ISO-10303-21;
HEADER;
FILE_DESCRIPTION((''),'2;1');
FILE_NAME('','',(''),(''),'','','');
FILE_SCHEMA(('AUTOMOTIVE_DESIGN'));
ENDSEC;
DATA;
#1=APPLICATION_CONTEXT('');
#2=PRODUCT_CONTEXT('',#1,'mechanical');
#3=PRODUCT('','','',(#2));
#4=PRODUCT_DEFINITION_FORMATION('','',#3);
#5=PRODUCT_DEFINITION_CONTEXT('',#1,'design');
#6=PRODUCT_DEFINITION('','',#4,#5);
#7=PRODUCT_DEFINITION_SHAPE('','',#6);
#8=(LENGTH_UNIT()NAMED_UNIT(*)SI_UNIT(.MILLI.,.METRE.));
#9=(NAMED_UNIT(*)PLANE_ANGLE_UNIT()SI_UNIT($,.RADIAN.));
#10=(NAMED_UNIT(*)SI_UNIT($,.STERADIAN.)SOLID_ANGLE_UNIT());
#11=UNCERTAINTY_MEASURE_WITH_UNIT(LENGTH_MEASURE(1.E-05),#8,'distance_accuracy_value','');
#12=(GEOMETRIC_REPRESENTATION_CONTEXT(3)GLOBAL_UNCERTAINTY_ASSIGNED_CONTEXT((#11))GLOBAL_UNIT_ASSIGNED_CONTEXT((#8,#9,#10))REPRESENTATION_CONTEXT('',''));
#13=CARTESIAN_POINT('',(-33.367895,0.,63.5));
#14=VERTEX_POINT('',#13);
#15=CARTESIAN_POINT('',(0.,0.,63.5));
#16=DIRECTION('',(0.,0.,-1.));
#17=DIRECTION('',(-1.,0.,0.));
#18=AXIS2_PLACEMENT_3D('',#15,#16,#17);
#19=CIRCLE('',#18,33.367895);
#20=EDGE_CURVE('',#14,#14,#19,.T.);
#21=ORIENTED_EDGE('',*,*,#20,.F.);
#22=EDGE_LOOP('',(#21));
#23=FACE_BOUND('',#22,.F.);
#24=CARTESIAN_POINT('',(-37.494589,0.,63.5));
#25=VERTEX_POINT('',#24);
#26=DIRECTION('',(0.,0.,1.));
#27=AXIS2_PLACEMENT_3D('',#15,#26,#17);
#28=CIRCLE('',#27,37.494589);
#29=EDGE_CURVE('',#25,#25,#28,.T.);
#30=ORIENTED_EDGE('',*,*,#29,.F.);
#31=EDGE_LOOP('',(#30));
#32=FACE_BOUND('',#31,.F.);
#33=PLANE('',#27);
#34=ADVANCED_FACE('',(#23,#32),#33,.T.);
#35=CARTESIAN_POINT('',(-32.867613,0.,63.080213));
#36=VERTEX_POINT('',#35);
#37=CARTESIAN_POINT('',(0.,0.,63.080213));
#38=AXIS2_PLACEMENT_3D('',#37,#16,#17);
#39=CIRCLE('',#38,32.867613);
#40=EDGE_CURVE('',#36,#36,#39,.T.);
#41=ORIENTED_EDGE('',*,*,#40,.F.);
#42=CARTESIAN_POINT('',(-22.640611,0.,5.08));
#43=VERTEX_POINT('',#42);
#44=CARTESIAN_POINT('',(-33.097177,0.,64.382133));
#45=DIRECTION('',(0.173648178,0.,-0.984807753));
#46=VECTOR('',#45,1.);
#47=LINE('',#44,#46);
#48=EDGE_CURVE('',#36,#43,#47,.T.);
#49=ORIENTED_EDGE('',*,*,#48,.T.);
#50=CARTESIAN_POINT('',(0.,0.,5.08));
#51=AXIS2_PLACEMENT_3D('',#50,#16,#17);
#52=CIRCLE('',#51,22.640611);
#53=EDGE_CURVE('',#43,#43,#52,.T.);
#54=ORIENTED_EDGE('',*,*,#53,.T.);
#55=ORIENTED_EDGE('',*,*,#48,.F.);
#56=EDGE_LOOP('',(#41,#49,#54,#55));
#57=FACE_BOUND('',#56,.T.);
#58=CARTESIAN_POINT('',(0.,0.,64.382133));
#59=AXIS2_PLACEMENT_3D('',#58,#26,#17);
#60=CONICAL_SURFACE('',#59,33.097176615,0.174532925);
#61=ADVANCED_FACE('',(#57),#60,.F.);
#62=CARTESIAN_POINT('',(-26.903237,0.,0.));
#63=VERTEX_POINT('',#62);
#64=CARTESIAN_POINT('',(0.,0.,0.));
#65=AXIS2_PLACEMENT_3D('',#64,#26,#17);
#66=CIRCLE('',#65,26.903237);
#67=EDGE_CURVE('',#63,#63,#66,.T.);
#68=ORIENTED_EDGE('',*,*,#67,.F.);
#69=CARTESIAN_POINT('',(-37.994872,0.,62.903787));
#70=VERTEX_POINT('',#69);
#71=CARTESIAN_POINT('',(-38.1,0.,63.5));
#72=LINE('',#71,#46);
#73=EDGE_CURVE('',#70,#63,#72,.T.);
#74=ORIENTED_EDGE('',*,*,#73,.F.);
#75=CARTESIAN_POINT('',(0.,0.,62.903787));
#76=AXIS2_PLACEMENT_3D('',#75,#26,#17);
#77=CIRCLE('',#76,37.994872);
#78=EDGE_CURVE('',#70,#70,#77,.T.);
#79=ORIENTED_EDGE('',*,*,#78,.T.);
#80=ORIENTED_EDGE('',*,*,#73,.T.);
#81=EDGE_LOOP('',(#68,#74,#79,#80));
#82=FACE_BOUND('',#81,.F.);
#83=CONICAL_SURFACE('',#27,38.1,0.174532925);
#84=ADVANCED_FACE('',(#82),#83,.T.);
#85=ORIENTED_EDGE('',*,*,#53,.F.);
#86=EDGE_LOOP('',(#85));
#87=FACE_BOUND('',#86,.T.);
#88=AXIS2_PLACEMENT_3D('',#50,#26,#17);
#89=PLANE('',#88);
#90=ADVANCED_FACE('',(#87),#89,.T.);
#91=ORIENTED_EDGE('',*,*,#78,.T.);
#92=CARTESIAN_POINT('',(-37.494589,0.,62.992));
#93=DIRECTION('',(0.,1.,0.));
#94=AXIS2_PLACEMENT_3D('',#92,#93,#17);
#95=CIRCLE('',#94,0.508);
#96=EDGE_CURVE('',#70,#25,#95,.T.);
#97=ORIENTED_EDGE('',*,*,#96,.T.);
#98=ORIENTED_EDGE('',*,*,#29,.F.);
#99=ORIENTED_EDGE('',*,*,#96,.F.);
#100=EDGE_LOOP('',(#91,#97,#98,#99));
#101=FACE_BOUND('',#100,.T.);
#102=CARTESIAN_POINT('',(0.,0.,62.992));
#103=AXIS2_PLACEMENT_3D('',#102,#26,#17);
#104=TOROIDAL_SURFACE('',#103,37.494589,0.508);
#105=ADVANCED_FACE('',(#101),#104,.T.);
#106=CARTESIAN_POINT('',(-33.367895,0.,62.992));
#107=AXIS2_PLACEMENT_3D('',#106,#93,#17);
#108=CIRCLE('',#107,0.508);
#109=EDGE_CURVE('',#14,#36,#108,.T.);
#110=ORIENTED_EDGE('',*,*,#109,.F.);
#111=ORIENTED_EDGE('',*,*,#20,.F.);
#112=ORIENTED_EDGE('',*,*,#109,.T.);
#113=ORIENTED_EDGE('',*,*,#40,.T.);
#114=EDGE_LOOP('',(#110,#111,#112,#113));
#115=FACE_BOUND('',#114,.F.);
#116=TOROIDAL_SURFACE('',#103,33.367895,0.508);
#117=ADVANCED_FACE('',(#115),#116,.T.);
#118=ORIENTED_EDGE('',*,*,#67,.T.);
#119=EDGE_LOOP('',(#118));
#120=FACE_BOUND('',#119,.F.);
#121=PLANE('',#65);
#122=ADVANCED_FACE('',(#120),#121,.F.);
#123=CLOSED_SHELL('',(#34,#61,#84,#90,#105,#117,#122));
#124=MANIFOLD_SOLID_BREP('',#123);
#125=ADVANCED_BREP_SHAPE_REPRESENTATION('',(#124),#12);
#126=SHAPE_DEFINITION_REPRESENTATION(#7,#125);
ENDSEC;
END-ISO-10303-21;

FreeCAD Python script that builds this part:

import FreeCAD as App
import Part
import Sketcher

V = App.Vector
Q = App.Units.Quantity


def edges_at(feature, points):
    """Names of the edges that pass closest to the given points."""
    edges = feature.Shape.Edges
    near = lambda p: min(range(len(edges)), key=lambda i: edges[i].distToShape(Part.Vertex(*p))[0])
    return sorted({f"Edge{near(p) + 1}" for p in points})


def faces_at(feature, points):
    """Names of the faces that lie closest to the given points."""
    faces = feature.Shape.Faces
    near = lambda p: min(range(len(faces)), key=lambda i: faces[i].distToShape(Part.Vertex(*p))[0])
    return sorted({f"Face{near(p) + 1}" for p in points})

doc = App.newDocument("Part")
body = doc.addObject("PartDesign::Body", "Body")

# Sketch on XZ plane
sketch1 = doc.addObject("Sketcher::SketchObject", "Sketch")
body.addObject(sketch1)
sketch1.AttachmentSupport = (doc.XZ_Plane, [""])
sketch1.MapMode = "FlatFace"
sketch1.addGeometry([
    Part.LineSegment(V(0, 0, 0), V(0, 63.5, 0)),
    Part.LineSegment(V(0, 63.5, 0), V(-38.1, 63.5, 0)),
    Part.LineSegment(V(-38.1, 63.5, 0), V(-26.903237, 0, 0)),
    Part.LineSegment(V(-26.903237, 0, 0), V(0, 0, 0)),
], False)
sketch1.addConstraint([
    Sketcher.Constraint("Coincident", 0, 2, 1, 1),
    Sketcher.Constraint("Coincident", 1, 2, 2, 1),
    Sketcher.Constraint("Coincident", 2, 2, 3, 1),
    Sketcher.Constraint("Coincident", 3, 2, 0, 1),
    Sketcher.Constraint("Vertical", 0),
    Sketcher.Constraint("Horizontal", 1),
    Sketcher.Constraint("Horizontal", 3),
    Sketcher.Constraint("Coincident", 3, 2, -1, 1),
    Sketcher.Constraint("DistanceX", 1, 2, 1, 1, Q("1.5 in")),
    Sketcher.Constraint("DistanceY", 0, 1, 0, 2, Q("2.5 in")),
    Sketcher.Constraint("Angle", 2, Q("-80 deg")),
])
revolution = doc.addObject("PartDesign::Revolution", "Revolution")
body.addObject(revolution)
revolution.Profile = sketch1
revolution.ReferenceAxis = (sketch1, ["V_Axis"])
revolution.Angle = 360
doc.recompute()

thickness = doc.addObject("PartDesign::Thickness", "Thickness")
body.addObject(thickness)
thickness.Base = (revolution, faces_at(revolution, [(0, 0, 63.5)]))
thickness.Value = Q("0.2 in")
thickness.Reversed = True
thickness.Join = "Arc"
doc.recompute()

fillet = doc.addObject("PartDesign::Fillet", "Fillet")
body.addObject(fillet)
fillet.Base = (thickness, edges_at(thickness, [(38.1, 0, 63.5), (32.942, 0, 63.5)]))
fillet.Radius = Q("0.02 in")

doc.recompute()
